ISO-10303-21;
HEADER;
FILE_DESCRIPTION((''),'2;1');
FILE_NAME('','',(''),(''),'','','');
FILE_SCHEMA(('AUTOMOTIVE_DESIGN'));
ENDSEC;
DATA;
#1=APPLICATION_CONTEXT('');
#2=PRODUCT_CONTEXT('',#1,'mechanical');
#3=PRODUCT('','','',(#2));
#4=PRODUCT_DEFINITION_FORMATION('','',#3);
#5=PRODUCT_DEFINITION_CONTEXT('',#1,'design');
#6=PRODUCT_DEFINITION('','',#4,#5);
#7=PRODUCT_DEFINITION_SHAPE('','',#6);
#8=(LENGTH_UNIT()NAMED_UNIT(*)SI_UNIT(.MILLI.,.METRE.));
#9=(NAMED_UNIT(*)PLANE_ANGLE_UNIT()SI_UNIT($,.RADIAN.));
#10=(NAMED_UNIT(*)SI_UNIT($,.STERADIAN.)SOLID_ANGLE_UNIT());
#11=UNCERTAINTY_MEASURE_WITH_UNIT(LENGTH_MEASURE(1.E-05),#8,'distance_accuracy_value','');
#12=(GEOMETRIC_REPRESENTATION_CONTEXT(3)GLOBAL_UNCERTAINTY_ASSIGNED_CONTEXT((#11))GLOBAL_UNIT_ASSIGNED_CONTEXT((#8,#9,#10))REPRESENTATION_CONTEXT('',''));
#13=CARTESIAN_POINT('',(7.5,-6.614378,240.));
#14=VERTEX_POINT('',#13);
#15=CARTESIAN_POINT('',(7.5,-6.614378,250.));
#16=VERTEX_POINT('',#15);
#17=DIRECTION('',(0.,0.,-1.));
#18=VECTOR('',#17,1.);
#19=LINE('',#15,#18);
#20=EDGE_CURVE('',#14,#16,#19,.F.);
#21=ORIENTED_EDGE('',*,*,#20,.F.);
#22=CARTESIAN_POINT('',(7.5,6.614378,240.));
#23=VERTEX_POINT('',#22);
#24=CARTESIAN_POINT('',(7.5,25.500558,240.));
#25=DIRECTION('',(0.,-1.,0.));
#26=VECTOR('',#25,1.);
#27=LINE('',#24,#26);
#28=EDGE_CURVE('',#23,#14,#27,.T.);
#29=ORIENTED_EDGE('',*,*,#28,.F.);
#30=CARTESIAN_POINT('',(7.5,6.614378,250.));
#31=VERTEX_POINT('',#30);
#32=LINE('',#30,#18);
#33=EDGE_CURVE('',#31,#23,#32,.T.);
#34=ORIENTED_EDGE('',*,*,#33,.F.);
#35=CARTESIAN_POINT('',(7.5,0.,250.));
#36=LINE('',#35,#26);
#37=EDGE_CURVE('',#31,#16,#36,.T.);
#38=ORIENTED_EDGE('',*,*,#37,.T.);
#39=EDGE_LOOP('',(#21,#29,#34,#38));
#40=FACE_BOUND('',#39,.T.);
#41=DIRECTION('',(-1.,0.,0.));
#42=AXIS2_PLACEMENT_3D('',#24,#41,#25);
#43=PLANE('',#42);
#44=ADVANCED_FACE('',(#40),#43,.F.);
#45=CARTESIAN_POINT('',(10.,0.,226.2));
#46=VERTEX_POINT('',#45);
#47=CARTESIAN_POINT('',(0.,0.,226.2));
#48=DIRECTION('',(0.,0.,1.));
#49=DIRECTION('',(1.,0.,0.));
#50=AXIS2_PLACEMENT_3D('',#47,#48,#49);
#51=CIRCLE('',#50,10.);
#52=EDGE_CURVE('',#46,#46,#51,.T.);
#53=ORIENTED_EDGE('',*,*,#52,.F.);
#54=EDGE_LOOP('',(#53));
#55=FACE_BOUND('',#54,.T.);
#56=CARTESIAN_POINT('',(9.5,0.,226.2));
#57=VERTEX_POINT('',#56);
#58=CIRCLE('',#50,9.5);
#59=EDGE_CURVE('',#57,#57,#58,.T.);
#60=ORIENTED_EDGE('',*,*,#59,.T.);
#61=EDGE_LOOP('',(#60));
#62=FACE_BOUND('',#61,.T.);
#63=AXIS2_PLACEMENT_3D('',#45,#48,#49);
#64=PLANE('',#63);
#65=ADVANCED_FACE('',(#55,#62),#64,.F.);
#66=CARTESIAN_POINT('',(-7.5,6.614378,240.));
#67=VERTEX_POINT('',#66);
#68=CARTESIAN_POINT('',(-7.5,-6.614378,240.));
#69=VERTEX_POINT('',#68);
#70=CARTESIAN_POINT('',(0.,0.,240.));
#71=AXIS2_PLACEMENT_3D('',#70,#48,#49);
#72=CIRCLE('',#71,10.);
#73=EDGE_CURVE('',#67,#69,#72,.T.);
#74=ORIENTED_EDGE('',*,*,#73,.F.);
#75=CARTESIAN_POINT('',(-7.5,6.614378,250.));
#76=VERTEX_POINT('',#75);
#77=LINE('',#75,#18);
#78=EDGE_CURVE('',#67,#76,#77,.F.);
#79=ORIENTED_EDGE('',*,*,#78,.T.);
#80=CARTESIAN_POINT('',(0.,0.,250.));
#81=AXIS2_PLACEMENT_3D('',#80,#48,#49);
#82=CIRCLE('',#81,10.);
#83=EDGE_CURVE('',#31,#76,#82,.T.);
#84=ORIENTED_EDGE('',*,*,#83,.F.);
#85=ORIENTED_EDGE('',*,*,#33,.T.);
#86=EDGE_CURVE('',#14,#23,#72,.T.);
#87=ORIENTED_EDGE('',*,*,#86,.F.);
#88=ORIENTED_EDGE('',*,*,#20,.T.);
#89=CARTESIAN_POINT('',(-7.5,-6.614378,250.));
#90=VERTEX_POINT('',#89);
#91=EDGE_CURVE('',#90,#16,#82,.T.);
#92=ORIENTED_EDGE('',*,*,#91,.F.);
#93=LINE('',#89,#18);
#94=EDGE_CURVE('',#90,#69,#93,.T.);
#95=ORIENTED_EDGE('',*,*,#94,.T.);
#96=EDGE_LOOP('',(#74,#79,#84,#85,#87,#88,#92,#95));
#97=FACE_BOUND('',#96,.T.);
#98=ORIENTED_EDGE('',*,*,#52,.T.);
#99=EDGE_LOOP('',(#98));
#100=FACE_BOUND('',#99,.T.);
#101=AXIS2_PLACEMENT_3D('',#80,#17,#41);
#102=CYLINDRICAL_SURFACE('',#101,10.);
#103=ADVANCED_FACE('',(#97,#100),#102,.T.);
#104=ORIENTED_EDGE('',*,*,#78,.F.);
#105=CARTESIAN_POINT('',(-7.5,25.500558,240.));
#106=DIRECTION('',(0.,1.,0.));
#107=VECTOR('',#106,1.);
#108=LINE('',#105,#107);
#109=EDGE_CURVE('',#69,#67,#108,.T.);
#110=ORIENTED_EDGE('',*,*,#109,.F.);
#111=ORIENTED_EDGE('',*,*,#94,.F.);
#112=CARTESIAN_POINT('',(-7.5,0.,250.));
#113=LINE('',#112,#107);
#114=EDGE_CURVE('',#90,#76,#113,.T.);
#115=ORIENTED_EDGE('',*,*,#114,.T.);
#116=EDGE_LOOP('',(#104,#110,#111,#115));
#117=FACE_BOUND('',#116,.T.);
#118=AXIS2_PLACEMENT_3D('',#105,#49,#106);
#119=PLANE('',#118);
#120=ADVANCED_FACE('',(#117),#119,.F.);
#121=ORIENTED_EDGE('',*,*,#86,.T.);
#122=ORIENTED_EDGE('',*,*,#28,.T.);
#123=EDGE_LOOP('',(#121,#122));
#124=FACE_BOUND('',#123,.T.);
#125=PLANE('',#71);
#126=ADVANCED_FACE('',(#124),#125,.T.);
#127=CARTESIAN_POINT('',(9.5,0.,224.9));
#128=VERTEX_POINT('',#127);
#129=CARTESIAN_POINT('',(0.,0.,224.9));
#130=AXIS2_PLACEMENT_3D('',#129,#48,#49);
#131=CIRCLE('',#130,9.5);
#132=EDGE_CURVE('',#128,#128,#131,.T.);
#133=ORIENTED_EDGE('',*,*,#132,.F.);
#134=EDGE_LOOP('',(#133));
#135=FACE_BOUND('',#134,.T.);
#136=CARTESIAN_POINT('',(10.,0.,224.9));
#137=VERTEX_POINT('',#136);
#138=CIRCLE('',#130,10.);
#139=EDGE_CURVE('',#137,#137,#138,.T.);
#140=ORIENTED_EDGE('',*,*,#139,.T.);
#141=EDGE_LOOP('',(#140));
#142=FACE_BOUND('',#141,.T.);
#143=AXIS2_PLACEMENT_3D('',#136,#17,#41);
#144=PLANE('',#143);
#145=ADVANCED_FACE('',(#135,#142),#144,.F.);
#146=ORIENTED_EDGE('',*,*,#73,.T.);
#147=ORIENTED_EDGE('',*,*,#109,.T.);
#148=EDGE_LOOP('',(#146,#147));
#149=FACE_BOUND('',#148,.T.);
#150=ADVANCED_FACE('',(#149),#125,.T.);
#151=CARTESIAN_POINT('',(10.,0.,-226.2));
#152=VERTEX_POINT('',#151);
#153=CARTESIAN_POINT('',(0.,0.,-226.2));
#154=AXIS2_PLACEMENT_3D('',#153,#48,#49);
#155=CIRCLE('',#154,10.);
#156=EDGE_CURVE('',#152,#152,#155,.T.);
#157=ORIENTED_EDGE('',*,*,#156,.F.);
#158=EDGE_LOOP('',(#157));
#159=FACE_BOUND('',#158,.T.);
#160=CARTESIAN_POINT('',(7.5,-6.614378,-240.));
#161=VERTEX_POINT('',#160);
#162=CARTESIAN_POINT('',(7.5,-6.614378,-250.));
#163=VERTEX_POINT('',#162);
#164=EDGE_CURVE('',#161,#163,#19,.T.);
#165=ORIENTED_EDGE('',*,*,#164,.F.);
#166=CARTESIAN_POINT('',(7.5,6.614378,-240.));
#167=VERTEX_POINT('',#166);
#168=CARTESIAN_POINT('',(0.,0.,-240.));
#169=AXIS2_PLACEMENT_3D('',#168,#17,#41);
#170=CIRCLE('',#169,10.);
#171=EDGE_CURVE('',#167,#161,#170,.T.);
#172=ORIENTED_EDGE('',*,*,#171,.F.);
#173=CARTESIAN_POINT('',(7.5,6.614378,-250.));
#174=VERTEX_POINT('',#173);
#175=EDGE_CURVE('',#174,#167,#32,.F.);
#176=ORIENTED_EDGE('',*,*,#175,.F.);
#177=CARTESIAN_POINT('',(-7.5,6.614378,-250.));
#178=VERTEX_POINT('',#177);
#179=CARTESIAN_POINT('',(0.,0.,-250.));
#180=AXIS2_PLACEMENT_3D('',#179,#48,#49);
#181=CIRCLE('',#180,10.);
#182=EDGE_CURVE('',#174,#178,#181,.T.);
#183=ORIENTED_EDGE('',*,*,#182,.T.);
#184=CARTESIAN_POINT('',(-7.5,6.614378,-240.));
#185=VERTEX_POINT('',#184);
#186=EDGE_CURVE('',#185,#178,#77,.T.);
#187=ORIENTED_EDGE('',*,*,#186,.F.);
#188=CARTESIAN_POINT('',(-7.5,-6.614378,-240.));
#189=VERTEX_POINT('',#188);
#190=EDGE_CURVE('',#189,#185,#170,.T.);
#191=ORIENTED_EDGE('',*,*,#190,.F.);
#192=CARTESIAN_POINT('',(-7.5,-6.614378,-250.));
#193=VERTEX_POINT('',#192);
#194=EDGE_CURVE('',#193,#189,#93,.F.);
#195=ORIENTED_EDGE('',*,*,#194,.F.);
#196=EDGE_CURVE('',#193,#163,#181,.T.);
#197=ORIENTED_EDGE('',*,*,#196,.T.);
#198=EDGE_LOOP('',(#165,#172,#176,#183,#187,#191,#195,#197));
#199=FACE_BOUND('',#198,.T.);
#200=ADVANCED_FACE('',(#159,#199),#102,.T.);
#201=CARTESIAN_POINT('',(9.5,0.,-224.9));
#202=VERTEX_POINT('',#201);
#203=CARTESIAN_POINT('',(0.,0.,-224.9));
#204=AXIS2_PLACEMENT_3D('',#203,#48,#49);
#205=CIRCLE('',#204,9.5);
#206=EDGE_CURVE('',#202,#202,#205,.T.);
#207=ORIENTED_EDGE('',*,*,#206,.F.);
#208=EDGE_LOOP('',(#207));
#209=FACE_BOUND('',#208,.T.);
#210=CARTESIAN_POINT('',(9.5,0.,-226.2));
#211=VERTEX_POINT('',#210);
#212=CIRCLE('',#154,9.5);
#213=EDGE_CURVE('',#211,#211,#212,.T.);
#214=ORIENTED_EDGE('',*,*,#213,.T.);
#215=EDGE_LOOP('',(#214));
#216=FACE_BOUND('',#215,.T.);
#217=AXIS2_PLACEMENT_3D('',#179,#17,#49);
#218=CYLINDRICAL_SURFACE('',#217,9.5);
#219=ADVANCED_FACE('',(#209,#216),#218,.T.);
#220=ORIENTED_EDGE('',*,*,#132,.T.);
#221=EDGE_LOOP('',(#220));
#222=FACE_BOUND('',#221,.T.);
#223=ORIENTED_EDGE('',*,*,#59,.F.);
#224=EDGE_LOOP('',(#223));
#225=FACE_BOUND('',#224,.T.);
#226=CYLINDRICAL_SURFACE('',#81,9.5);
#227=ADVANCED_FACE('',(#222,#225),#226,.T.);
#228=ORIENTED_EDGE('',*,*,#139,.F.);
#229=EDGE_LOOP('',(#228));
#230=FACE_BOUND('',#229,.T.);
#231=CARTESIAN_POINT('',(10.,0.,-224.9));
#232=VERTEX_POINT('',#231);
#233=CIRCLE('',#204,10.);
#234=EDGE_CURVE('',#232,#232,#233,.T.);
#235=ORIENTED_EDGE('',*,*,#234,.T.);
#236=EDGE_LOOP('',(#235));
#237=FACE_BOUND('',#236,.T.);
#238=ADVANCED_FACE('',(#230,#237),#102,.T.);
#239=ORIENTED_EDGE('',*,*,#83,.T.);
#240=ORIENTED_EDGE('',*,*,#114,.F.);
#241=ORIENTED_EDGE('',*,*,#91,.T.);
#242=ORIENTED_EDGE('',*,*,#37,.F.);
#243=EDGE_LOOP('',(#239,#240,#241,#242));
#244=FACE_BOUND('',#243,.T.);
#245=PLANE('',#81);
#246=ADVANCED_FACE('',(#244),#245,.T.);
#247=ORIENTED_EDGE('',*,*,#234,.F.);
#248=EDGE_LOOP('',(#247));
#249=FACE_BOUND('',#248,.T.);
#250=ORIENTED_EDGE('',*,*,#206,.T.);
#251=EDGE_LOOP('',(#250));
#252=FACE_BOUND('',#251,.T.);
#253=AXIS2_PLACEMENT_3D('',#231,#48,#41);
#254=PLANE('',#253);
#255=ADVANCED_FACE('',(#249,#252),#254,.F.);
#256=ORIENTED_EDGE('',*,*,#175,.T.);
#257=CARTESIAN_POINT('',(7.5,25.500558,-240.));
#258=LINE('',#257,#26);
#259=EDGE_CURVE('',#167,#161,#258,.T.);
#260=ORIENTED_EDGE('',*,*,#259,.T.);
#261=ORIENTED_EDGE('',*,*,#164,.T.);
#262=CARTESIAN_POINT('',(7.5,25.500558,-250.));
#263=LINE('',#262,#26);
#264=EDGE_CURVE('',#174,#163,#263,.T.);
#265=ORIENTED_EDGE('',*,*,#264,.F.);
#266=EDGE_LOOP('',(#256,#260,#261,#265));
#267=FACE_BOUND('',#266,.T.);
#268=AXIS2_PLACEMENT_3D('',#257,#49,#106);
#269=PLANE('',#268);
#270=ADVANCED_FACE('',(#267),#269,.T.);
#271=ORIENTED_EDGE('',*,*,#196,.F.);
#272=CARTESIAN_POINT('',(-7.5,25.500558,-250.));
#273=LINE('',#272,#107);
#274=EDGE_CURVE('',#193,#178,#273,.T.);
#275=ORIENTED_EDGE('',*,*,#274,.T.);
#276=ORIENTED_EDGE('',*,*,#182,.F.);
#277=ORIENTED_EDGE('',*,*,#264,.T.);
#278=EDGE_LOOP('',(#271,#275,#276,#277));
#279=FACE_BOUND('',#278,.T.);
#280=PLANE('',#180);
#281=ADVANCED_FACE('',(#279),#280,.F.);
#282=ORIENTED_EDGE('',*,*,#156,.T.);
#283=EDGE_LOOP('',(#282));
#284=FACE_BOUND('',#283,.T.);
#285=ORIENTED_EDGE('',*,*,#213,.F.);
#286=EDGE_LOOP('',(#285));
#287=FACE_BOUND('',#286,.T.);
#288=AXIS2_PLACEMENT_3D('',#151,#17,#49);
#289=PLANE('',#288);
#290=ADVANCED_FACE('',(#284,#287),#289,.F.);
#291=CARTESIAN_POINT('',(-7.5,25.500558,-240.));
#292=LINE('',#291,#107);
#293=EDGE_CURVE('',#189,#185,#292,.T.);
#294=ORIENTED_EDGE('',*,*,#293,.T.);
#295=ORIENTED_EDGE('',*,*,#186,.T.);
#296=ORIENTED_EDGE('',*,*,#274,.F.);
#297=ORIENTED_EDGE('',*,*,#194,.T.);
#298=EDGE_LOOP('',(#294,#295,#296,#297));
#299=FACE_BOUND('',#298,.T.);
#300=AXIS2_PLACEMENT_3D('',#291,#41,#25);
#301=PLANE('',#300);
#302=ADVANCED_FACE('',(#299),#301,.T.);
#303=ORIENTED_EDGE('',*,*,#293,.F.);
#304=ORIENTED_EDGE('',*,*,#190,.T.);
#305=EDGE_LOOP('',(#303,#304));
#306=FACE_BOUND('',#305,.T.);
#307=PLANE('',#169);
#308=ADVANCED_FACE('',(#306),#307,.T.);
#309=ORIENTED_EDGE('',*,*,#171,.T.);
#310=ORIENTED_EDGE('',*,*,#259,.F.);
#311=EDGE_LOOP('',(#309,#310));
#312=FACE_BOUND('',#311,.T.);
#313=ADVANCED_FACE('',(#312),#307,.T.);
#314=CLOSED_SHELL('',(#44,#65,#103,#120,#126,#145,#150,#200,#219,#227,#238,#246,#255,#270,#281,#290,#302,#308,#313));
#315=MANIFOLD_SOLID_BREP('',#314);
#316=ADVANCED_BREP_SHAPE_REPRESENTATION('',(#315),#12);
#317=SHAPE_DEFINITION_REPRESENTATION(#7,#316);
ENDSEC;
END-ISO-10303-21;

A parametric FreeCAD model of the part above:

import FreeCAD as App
import Part
import Sketcher

doc = App.newDocument("Part")
params = doc.addObject("Spreadsheet::Sheet", "Params")
for row, (alias, value) in enumerate([
    ("sketch1_diameter", "20 mm"),
    ("pad1_length", "500 mm"),
    ("sketch2_width", "0.5 mm"),
    ("sketch2_height", "1.3 mm"),
    ("groove_angle", "360 deg"),
    ("sketch3_width", "15 mm"),
    ("sketch3_width2", "122.16 mm"),
    ("pocket1_length", "10 mm"),
], start=1):
    params.set(f"A{row}", alias)
    params.set(f"B{row}", "=" + value)
    params.setAlias(f"B{row}", alias)

body = doc.addObject("PartDesign::Body", "Body")

# Sketch on XY plane
sketch1 = body.newObject("Sketcher::SketchObject", "Sketch")
sketch1.AttachmentSupport = (doc.getObject("XY_Plane"), [""])
sketch1.MapMode = "FlatFace"
sketch1.addGeometry(Part.Circle(App.Vector(0, 0, 0), App.Vector(0, 0, 1), 10), False)
sketch1.addConstraint([
    Sketcher.Constraint("Coincident", 0, 3, -1, 1),
    Sketcher.Constraint("Diameter", 0, 20.0),
])
sketch1.setExpression("Constraints[1]", "Params.sketch1_diameter")
pad1 = body.newObject("PartDesign::Pad", "Pad")
pad1.Profile = sketch1
pad1.setExpression("Length", "Params.pad1_length")
pad1.Midplane = True

# Sketch on XZ plane
sketch2 = body.newObject("Sketcher::SketchObject", "Sketch001")
sketch2.AttachmentSupport = (doc.getObject("XZ_Plane"), [""])
sketch2.MapMode = "FlatFace"
sketch2.addGeometry([
    Part.LineSegment(App.Vector(9.5, 226.2, 0), App.Vector(10, 226.2, 0)),
    Part.LineSegment(App.Vector(10, 226.2, 0), App.Vector(10, 224.9, 0)),
    Part.LineSegment(App.Vector(10, 224.9, 0), App.Vector(9.5, 224.9, 0)),
    Part.LineSegment(App.Vector(9.5, 224.9, 0), App.Vector(9.5, 226.2, 0)),
], False)
sketch2.addConstraint([
    Sketcher.Constraint("Coincident", 0, 2, 1, 1),
    Sketcher.Constraint("Coincident", 1, 2, 2, 1),
    Sketcher.Constraint("Coincident", 2, 2, 3, 1),
    Sketcher.Constraint("Coincident", 3, 2, 0, 1),
    Sketcher.Constraint("Horizontal", 0),
    Sketcher.Constraint("Vertical", 1),
    Sketcher.Constraint("Horizontal", 2),
    Sketcher.Constraint("Vertical", 3),
    Sketcher.Constraint("DistanceX", 0, 1, 0, 2, 0.5),
    Sketcher.Constraint("DistanceY", 1, 2, 1, 1, 1.3),
    Sketcher.Constraint("DistanceX", -1, 1, 0, 2, 10.0),
    Sketcher.Constraint("DistanceY", -1, 1, 0, 2, 226.2),
])
sketch2.setExpression("Constraints[8]", "Params.sketch2_width")
sketch2.setExpression("Constraints[9]", "Params.sketch2_height")
groove = body.newObject("PartDesign::Groove", "Groove")
groove.Profile = sketch2
groove.ReferenceAxis = (sketch2, ["V_Axis"])
groove.setExpression("Angle", "Params.groove_angle")

# Sketch on XY plane
sketch3 = body.newObject("Sketcher::SketchObject", "Sketch002")
sketch3.AttachmentSupport = (doc.getObject("XY_Plane"), [""])
sketch3.MapMode = "FlatFace"
sketch3.AttachmentOffset = App.Placement(App.Vector(0, 0, -250), App.Rotation())
sketch3.addGeometry([
    Part.LineSegment(App.Vector(61, 61, 0), App.Vector(61, -61, 0)),  # 0
    Part.LineSegment(App.Vector(61, -61, 0), App.Vector(-61, -61, 0)),  # 1
    Part.LineSegment(App.Vector(-61, -61, 0), App.Vector(-61, 61, 0)),  # 2
    Part.LineSegment(App.Vector(-61, 61, 0), App.Vector(61, 61, 0)),  # 3
    Part.LineSegment(App.Vector(-8, -26, 0), App.Vector(8, -26, 0)),  # 4
    Part.LineSegment(App.Vector(8, -26, 0), App.Vector(8, 26, 0)),  # 5
    Part.LineSegment(App.Vector(8, 26, 0), App.Vector(-8, 26, 0)),  # 6
    Part.LineSegment(App.Vector(-8, 26, 0), App.Vector(-8, -26, 0)),  # 7
], False)
sketch3.addConstraint([
    Sketcher.Constraint("Coincident", 0, 2, 1, 1),
    Sketcher.Constraint("Coincident", 1, 2, 2, 1),
    Sketcher.Constraint("Coincident", 2, 2, 3, 1),
    Sketcher.Constraint("Coincident", 3, 2, 0, 1),
    Sketcher.Constraint("Coincident", 4, 2, 5, 1),
    Sketcher.Constraint("Coincident", 5, 2, 6, 1),
    Sketcher.Constraint("Coincident", 6, 2, 7, 1),
    Sketcher.Constraint("Coincident", 7, 2, 4, 1),
    Sketcher.Constraint("Vertical", 0),
    Sketcher.Constraint("Horizontal", 1),
    Sketcher.Constraint("Vertical", 2),
    Sketcher.Constraint("Horizontal", 3),
    Sketcher.Constraint("Horizontal", 4),
    Sketcher.Constraint("Vertical", 5),
    Sketcher.Constraint("Horizontal", 6),
    Sketcher.Constraint("Vertical", 7),
    Sketcher.Constraint("Symmetric", 0, 2, 2, 2, -1, 1),
    Sketcher.Constraint("Symmetric", 4, 2, 6, 2, -1, 1),
    Sketcher.Constraint("Equal", 3, 0),
    Sketcher.Constraint("DistanceX", 4, 1, 4, 2, 15.0),
    Sketcher.Constraint("DistanceX", 1, 2, 1, 1, 122.16),
    Sketcher.Constraint("DistanceY", 5, 1, 5, 2, 51.001115),
])
sketch3.setExpression("Constraints[19]", "Params.sketch3_width")
sketch3.setExpression("Constraints[20]", "Params.sketch3_width2")
pocket1 = body.newObject("PartDesign::Pocket", "Pocket")
pocket1.Profile = sketch3
pocket1.setExpression("Length", "Params.pocket1_length")
pocket1.Reversed = True
doc.recompute()

mirrored = body.newObject("PartDesign::Mirrored", "Mirrored")
mirrored.Originals = [groove, pocket1]
mirrored.MirrorPlane = (doc.getObject("XY_Plane"), [""])
body.Tip = mirrored

doc.recompute()
